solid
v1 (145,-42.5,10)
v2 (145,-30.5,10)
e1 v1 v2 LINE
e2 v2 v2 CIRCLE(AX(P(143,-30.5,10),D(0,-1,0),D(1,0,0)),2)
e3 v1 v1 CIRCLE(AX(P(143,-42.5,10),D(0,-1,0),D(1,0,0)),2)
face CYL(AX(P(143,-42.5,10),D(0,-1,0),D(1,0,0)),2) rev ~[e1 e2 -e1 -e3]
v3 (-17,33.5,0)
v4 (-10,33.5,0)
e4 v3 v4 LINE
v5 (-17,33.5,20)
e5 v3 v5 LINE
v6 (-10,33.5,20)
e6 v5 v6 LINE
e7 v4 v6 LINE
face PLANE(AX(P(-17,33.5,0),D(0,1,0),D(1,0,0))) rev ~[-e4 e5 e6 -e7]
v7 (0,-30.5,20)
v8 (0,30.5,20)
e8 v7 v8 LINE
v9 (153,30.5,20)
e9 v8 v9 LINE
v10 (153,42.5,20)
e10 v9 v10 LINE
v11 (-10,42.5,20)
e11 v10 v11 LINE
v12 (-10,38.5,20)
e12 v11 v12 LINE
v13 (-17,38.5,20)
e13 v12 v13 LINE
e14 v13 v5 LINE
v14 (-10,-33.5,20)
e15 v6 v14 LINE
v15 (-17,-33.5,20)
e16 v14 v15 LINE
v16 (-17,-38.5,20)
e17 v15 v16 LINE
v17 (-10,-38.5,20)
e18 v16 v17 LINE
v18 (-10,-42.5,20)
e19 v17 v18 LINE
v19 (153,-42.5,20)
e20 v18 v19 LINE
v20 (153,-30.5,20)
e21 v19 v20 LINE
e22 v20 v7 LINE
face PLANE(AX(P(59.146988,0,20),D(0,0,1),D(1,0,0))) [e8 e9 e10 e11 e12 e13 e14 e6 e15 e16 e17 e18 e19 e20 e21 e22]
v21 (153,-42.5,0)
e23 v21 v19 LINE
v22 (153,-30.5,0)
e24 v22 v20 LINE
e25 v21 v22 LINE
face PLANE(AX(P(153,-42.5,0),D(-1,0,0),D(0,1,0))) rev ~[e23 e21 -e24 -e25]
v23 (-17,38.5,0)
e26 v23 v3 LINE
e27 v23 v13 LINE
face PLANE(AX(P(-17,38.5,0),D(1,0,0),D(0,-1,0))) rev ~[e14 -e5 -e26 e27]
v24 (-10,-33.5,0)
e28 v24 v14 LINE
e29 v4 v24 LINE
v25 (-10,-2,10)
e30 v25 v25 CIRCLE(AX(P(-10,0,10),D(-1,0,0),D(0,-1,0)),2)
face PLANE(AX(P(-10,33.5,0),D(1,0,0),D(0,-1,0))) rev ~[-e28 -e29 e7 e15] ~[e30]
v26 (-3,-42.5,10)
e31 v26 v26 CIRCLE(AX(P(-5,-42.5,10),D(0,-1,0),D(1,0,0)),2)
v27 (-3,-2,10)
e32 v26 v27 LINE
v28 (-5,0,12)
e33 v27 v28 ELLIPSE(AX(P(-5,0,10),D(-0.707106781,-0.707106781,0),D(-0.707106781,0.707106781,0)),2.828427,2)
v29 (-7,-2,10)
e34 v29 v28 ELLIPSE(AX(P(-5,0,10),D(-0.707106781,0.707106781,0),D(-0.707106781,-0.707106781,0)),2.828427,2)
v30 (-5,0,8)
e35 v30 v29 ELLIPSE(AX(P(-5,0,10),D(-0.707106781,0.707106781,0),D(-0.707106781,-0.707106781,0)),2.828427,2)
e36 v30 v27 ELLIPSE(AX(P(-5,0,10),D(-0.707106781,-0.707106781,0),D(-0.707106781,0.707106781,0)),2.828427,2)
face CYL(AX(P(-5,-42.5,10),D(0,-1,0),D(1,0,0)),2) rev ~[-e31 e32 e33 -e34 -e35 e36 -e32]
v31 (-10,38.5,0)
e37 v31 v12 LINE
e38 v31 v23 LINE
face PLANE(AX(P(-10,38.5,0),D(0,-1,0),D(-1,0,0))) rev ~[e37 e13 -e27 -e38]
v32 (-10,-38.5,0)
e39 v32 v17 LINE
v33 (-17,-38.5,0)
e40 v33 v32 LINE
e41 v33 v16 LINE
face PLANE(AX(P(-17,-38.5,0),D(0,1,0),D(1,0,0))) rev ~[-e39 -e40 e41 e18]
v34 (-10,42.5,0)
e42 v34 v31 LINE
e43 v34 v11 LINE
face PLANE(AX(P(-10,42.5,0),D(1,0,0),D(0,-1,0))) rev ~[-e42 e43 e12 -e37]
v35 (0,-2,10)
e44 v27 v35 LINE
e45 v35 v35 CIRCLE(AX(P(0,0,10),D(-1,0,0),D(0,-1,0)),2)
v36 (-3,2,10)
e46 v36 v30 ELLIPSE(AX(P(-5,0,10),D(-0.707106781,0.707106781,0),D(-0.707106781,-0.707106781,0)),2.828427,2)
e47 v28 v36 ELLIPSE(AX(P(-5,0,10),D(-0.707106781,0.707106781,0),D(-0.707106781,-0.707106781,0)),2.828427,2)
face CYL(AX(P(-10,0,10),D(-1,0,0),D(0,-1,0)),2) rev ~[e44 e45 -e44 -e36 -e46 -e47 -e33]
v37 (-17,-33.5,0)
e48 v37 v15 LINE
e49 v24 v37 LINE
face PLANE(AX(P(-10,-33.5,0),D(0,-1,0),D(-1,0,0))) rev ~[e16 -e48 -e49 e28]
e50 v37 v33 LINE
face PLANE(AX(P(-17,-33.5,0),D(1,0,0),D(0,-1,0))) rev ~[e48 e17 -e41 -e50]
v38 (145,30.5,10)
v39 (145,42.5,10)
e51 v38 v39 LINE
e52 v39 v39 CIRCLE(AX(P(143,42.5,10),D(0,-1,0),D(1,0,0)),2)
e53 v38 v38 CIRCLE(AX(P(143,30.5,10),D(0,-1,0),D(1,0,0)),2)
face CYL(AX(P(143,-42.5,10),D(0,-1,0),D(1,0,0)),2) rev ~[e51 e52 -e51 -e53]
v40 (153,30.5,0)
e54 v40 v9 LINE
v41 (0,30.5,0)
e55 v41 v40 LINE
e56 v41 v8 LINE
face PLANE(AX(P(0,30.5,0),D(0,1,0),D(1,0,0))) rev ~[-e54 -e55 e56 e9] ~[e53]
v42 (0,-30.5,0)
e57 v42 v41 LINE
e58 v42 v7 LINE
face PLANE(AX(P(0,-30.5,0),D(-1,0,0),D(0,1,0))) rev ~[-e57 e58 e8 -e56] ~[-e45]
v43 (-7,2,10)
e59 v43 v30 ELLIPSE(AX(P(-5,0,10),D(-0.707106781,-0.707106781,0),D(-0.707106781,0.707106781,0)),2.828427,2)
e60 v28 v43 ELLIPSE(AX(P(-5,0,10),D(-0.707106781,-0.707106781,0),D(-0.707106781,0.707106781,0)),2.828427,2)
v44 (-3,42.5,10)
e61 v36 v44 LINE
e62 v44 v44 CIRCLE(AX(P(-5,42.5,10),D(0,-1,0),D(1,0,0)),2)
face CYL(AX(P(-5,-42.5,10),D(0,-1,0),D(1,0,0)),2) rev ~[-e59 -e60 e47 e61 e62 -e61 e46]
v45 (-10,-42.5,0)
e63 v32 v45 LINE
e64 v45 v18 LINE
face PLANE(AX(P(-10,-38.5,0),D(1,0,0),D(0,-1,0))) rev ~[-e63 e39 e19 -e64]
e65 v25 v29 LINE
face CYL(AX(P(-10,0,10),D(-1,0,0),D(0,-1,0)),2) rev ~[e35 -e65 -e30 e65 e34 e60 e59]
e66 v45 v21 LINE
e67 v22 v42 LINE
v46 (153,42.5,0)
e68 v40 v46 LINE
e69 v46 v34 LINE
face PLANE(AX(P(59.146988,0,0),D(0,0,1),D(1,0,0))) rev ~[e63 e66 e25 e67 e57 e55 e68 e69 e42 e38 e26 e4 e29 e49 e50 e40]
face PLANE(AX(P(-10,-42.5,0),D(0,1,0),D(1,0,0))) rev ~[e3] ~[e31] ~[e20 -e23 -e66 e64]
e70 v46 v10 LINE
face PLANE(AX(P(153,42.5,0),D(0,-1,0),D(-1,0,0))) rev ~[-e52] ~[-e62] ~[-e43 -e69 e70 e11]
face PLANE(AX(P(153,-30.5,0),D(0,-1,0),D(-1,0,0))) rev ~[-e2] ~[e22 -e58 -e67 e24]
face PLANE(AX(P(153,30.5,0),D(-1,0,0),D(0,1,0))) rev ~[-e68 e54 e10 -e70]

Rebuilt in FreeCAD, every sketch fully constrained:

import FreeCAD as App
import Part
import Sketcher

doc = App.newDocument("Part")
body = doc.addObject("PartDesign::Body", "Body")

sketch1 = body.newObject("Sketcher::SketchObject", "Sketch")
sketch1.AttachmentSupport = (doc.getObject("XY_Plane"), [""])
sketch1.MapMode = "FlatFace"
sketch1.addGeometry([
    Part.LineSegment(App.Vector(-10, -42.5, 0), App.Vector(153, -42.5, 0)),
    Part.LineSegment(App.Vector(153, -42.5, 0), App.Vector(153, -30.5, 0)),
    Part.LineSegment(App.Vector(153, -30.5, 0), App.Vector(0, -30.5, 0)),
    Part.LineSegment(App.Vector(0, -30.5, 0), App.Vector(0, 30.5, 0)),
    Part.LineSegment(App.Vector(0, 30.5, 0), App.Vector(153, 30.5, 0)),
    Part.LineSegment(App.Vector(153, 30.5, 0), App.Vector(153, 42.5, 0)),
    Part.LineSegment(App.Vector(153, 42.5, 0), App.Vector(-10, 42.5, 0)),
    Part.LineSegment(App.Vector(-10, 42.5, 0), App.Vector(-10, 38.5, 0)),
    Part.LineSegment(App.Vector(-10, 38.5, 0), App.Vector(-17, 38.5, 0)),
    Part.LineSegment(App.Vector(-17, 38.5, 0), App.Vector(-17, 33.5, 0)),
    Part.LineSegment(App.Vector(-17, 33.5, 0), App.Vector(-10, 33.5, 0)),
    Part.LineSegment(App.Vector(-10, 33.5, 0), App.Vector(-10, -33.5, 0)),
    Part.LineSegment(App.Vector(-10, -33.5, 0), App.Vector(-17, -33.5, 0)),
    Part.LineSegment(App.Vector(-17, -33.5, 0), App.Vector(-17, -38.5, 0)),
    Part.LineSegment(App.Vector(-17, -38.5, 0), App.Vector(-10, -38.5, 0)),
    Part.LineSegment(App.Vector(-10, -38.5, 0), App.Vector(-10, -42.5, 0)),
], False)
sketch1.addConstraint([
    Sketcher.Constraint("Coincident", 0, 2, 1, 1),
    Sketcher.Constraint("Coincident", 1, 2, 2, 1),
    Sketcher.Constraint("Coincident", 2, 2, 3, 1),
    Sketcher.Constraint("Coincident", 3, 2, 4, 1),
    Sketcher.Constraint("Coincident", 4, 2, 5, 1),
    Sketcher.Constraint("Coincident", 5, 2, 6, 1),
    Sketcher.Constraint("Coincident", 6, 2, 7, 1),
    Sketcher.Constraint("Coincident", 7, 2, 8, 1),
    Sketcher.Constraint("Coincident", 8, 2, 9, 1),
    Sketcher.Constraint("Coincident", 9, 2, 10, 1),
    Sketcher.Constraint("Coincident", 10, 2, 11, 1),
    Sketcher.Constraint("Coincident", 11, 2, 12, 1),
    Sketcher.Constraint("Coincident", 12, 2, 13, 1),
    Sketcher.Constraint("Coincident", 13, 2, 14, 1),
    Sketcher.Constraint("Coincident", 14, 2, 15, 1),
    Sketcher.Constraint("Coincident", 15, 2, 0, 1),
    Sketcher.Constraint("Horizontal", 0),
    Sketcher.Constraint("Vertical", 1),
    Sketcher.Constraint("Horizontal", 2),
    Sketcher.Constraint("Vertical", 3),
    Sketcher.Constraint("Horizontal", 4),
    Sketcher.Constraint("Vertical", 5),
    Sketcher.Constraint("Horizontal", 6),
    Sketcher.Constraint("Vertical", 7),
    Sketcher.Constraint("Horizontal", 8),
    Sketcher.Constraint("Vertical", 9),
    Sketcher.Constraint("Horizontal", 10),
    Sketcher.Constraint("Vertical", 11),
    Sketcher.Constraint("Horizontal", 12),
    Sketcher.Constraint("Vertical", 13),
    Sketcher.Constraint("Horizontal", 14),
    Sketcher.Constraint("Vertical", 15),
    Sketcher.Constraint("Symmetric", 2, 2, 3, 2, -1, 1),
    Sketcher.Constraint("Symmetric", 0, 2, 5, 2, -1),
    Sketcher.Constraint("Symmetric", 9, 2, 12, 2, -1),
    Sketcher.Constraint("Symmetric", 7, 2, 14, 2, -1),
    Sketcher.Constraint("Vertical", 7, 2, 10, 2),
    Sketcher.Constraint("DistanceX", 0, 1, 0, 2, 163.0),
    Sketcher.Constraint("DistanceX", 2, 2, 2, 1, 153.0),
    Sketcher.Constraint("DistanceX", 8, 2, 8, 1, 7.0),
    Sketcher.Constraint("DistanceY", 1, 1, 1, 2, 12.0),
    Sketcher.Constraint("DistanceY", 3, 1, 3, 2, 61.0),
    Sketcher.Constraint("DistanceY", 7, 2, 7, 1, 4.0),
    Sketcher.Constraint("DistanceY", 9, 2, 9, 1, 5.0),
])
pad1 = body.newObject("PartDesign::Pad", "Pad")
pad1.Profile = sketch1
pad1.Length = 20

sketch2 = body.newObject("Sketcher::SketchObject", "Sketch001")
sketch2.AttachmentSupport = (doc.getObject("YZ_Plane"), [""])
sketch2.MapMode = "FlatFace"
sketch2.AttachmentOffset = App.Placement(App.Vector(0, 0, -10), App.Rotation())
sketch2.addGeometry(Part.Circle(App.Vector(0, 10, 0), App.Vector(0, 0, 1), 2), False)
sketch2.addConstraint([
    Sketcher.Constraint("PointOnObject", 0, 3, -2),
    Sketcher.Constraint("Diameter", 0, 4.0),
    Sketcher.Constraint("DistanceY", -1, 1, 0, 3, 10.0),
])
pocket1 = body.newObject("PartDesign::Pocket", "Pocket")
pocket1.Profile = sketch2
pocket1.Type = "ThroughAll"
pocket1.Reversed = True

sketch3 = body.newObject("Sketcher::SketchObject", "Sketch002")
sketch3.AttachmentSupport = (doc.getObject("XZ_Plane"), [""])
sketch3.MapMode = "FlatFace"
sketch3.AttachmentOffset = App.Placement(App.Vector(0, 0, 42.5), App.Rotation())
sketch3.addGeometry([
    Part.Circle(App.Vector(-5, 10, 0), App.Vector(0, 0, 1), 2),
    Part.Circle(App.Vector(143, 10, 0), App.Vector(0, 0, 1), 2),
], False)
sketch3.addConstraint([
    Sketcher.Constraint("Equal", 0, 1),
    Sketcher.Constraint("Horizontal", 0, 3, 1, 3),
    Sketcher.Constraint("Diameter", 0, 4.0),
    Sketcher.Constraint("DistanceX", 0, 3, -1, 1, 5.0),
    Sketcher.Constraint("DistanceY", -1, 1, 0, 3, 10.0),
    Sketcher.Constraint("DistanceX", -1, 1, 1, 3, 143.0),
])
pocket2 = body.newObject("PartDesign::Pocket", "Pocket001")
pocket2.Profile = sketch3
pocket2.Type = "ThroughAll"

doc.recompute()
